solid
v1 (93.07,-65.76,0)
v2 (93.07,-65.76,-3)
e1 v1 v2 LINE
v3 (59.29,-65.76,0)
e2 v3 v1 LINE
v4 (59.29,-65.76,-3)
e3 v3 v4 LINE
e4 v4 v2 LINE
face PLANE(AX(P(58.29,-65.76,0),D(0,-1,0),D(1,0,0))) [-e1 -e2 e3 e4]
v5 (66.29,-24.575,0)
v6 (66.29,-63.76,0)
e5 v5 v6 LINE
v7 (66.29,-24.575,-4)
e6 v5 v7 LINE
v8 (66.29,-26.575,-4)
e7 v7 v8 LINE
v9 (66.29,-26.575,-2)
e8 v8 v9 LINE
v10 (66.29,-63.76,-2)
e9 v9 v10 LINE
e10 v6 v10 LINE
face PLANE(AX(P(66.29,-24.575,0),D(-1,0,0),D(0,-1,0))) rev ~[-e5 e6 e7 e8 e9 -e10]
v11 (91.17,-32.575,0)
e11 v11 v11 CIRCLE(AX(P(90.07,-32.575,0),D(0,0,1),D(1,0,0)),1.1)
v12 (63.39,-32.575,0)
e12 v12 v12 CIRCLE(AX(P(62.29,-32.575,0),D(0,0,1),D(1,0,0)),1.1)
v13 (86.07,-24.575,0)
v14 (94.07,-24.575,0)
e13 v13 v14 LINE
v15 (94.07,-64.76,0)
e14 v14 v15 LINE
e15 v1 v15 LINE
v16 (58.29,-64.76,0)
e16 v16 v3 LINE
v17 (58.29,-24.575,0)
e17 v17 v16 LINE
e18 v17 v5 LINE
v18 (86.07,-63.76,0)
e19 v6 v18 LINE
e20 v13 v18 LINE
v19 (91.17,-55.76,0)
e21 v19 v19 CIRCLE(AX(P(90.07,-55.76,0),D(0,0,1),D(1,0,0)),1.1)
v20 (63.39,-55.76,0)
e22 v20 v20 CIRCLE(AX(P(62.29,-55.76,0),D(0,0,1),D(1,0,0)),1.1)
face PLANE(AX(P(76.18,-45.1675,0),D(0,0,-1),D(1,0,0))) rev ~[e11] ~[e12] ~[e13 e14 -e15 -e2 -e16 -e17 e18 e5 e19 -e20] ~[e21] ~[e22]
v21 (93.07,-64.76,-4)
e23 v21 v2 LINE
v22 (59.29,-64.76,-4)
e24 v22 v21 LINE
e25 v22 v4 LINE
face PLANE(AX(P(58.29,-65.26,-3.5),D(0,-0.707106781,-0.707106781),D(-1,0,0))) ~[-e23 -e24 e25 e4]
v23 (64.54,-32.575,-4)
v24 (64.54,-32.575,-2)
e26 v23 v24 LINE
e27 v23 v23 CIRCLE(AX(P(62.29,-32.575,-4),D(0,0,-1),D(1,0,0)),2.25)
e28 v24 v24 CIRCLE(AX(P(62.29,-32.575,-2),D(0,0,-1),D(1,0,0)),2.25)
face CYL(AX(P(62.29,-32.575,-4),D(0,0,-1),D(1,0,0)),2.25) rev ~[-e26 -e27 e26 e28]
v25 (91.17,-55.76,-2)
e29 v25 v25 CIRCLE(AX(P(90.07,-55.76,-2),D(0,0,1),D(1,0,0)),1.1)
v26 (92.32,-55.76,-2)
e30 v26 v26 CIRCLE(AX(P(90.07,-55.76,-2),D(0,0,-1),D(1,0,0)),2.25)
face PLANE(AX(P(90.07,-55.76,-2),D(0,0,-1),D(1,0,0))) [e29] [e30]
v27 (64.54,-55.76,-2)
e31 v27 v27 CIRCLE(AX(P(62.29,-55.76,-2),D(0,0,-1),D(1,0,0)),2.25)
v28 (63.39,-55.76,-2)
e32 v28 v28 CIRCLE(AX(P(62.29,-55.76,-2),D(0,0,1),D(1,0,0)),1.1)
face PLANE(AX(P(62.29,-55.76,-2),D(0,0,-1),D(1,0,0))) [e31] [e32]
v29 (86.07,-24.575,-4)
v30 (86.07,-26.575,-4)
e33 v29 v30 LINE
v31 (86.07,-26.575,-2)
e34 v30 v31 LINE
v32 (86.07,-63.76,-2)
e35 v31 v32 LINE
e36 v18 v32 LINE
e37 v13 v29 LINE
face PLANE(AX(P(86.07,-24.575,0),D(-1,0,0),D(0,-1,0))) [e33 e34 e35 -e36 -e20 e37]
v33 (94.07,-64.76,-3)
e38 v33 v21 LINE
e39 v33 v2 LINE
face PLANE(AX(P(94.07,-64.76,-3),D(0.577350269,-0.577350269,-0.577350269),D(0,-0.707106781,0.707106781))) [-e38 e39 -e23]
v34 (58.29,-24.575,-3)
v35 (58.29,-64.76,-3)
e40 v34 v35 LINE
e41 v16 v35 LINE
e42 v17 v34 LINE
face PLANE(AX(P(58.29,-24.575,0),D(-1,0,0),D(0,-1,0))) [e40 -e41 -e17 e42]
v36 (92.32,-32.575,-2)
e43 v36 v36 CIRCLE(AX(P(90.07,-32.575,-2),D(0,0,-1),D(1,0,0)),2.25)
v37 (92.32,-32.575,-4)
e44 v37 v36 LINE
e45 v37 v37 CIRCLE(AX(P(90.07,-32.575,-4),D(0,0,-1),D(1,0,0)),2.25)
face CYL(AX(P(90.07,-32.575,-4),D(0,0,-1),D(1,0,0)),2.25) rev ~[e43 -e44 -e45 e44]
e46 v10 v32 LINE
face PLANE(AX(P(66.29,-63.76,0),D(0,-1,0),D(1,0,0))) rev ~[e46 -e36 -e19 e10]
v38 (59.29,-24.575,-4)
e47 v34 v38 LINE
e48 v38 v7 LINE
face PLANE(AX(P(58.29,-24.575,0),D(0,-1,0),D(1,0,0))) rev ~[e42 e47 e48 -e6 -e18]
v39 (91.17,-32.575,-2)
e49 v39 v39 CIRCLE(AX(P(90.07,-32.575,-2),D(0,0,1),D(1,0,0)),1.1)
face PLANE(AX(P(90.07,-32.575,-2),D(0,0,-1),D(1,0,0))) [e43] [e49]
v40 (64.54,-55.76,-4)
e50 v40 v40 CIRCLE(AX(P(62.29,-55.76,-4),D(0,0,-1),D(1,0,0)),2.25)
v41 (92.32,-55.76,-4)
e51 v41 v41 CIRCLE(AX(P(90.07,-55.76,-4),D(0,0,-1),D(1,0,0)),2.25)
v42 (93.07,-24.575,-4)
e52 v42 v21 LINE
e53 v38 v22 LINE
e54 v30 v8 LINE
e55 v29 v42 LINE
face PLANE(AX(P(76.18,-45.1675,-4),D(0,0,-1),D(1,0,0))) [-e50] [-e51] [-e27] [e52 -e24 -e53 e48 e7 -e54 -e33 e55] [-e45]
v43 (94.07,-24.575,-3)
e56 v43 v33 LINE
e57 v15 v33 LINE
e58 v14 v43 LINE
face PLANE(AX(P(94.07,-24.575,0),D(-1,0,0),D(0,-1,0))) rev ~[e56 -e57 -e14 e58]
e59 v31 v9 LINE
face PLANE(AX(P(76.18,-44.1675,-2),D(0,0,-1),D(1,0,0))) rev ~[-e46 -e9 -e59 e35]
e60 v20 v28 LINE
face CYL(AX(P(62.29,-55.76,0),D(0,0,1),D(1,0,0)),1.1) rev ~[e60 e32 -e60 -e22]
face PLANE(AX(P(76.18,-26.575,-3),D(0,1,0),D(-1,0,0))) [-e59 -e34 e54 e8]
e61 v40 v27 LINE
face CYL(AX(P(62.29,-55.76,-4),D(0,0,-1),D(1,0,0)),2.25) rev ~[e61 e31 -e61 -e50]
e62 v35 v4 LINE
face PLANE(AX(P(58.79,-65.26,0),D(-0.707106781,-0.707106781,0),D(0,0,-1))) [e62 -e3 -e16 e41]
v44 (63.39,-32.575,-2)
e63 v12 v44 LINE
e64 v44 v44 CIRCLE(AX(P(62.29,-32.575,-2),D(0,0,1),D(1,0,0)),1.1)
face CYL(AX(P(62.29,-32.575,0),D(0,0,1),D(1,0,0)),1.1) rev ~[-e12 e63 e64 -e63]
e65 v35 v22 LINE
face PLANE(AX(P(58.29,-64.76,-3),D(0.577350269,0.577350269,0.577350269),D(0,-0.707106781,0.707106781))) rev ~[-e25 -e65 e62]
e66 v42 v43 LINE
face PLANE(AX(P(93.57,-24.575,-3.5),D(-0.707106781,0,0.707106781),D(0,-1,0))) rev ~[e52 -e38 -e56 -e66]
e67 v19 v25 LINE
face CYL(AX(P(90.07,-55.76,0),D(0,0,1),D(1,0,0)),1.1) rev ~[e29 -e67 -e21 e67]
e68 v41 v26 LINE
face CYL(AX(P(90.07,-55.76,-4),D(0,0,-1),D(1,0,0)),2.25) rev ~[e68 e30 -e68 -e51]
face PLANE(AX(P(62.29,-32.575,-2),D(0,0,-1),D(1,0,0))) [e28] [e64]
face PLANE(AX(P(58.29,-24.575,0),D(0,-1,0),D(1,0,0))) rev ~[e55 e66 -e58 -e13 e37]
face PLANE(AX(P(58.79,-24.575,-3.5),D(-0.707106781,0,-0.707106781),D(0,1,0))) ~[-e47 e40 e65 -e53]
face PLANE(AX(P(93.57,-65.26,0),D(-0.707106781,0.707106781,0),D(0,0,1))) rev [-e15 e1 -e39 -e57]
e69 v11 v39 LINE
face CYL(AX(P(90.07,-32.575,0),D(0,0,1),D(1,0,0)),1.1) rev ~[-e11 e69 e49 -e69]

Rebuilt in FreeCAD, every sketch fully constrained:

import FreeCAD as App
import Part
import Sketcher

V = App.Vector


def edges_at(feature, points):
    """Names of the edges that pass closest to the given points."""
    edges = feature.Shape.Edges
    near = lambda p: min(range(len(edges)), key=lambda i: edges[i].distToShape(Part.Vertex(*p))[0])
    return sorted({f"Edge{near(p) + 1}" for p in points})


def add_polygon(sketch, points):
    """Adds a closed chain of lines whose ends are joined by coincident constraints."""
    first, n = sketch.GeometryCount, len(points)
    for a, b in zip(points, points[1:] + points[:1]):
        sketch.addGeometry(Part.LineSegment(App.Vector(*a, 0), App.Vector(*b, 0)), False)
    for i in range(n):
        sketch.addConstraint(Sketcher.Constraint("Coincident", first + i, 2, first + (i + 1) % n, 1))

doc = App.newDocument("Part")
params = doc.addObject("Spreadsheet::Sheet", "Params")
for row, (alias, value) in enumerate([
    ("sketch1_width", "35.78 mm"),
    ("pad1_length", "4 mm"),
    ("sketch2_width", "19.78 mm"),
    ("pocket1_length", "2 mm"),
    ("sketch3_diameter", "2.2 mm"),
    ("sketch4_diameter", "4.5 mm"),
    ("pocket3_length", "2 mm"),
    ("chamfer_size", "1 mm"),
    ("sketch5_height", "2 mm"),
    ("sketch5_width", "19.78 mm"),
    ("pocket4_length", "2 mm"),
], start=1):
    params.set(f"A{row}", alias)
    params.set(f"B{row}", "=" + value)
    params.setAlias(f"B{row}", alias)

body = doc.addObject("PartDesign::Body", "Body")

sketch1 = doc.addObject("Sketcher::SketchObject", "Sketch")
body.addObject(sketch1)
sketch1.AttachmentSupport = (doc.XY_Plane, [""])
sketch1.MapMode = "FlatFace"
add_polygon(sketch1, [(58, -66), (58, -25), (94, -25), (94, -66)])
sketch1.addConstraint([
    Sketcher.Constraint("Vertical", 0),
    Sketcher.Constraint("Horizontal", 1),
    Sketcher.Constraint("Vertical", 2),
    Sketcher.Constraint("Horizontal", 3),
    Sketcher.Constraint("DistanceX", 1, 1, 1, 2, 35.78),
    Sketcher.Constraint("DistanceY", 0, 1, 0, 2, 41.185),
    Sketcher.Constraint("DistanceX", -1, 1, 0, 2, 58.29),
    Sketcher.Constraint("DistanceY", 2, 2, -1, 1, 65.76),
])
sketch1.setExpression("Constraints[8]", "Params.sketch1_width")
pad1 = doc.addObject("PartDesign::Pad", "Pad")
body.addObject(pad1)
pad1.Profile = sketch1
pad1.setExpression("Length", "Params.pad1_length")
pad1.Reversed = True

sketch2 = doc.addObject("Sketcher::SketchObject", "Sketch001")
body.addObject(sketch2)
sketch2.AttachmentSupport = (doc.XY_Plane, [""])
sketch2.MapMode = "FlatFace"
add_polygon(sketch2, [(66, -64), (66, -25), (86, -25), (86, -64)])
sketch2.addConstraint([
    Sketcher.Constraint("Vertical", 0),
    Sketcher.Constraint("Horizontal", 1),
    Sketcher.Constraint("Vertical", 2),
    Sketcher.Constraint("Horizontal", 3),
    Sketcher.Constraint("DistanceX", 1, 1, 1, 2, 19.78),
    Sketcher.Constraint("DistanceY", 0, 1, 0, 2, 39.185),
    Sketcher.Constraint("DistanceX", -1, 1, 0, 2, 66.29),
    Sketcher.Constraint("DistanceY", 2, 2, -1, 1, 63.76),
])
sketch2.setExpression("Constraints[8]", "Params.sketch2_width")
pocket1 = doc.addObject("PartDesign::Pocket", "Pocket")
body.addObject(pocket1)
pocket1.Profile = sketch2
pocket1.setExpression("Length", "Params.pocket1_length")

sketch3 = doc.addObject("Sketcher::SketchObject", "Sketch002")
body.addObject(sketch3)
sketch3.AttachmentSupport = (doc.XY_Plane, [""])
sketch3.MapMode = "FlatFace"
sketch3.addGeometry([
    Part.Circle(V(62.3, -32.6, 0), V(0, 0, 1), 1.1),
    Part.Circle(V(90.1, -32.6, 0), V(0, 0, 1), 1.1),
    Part.Circle(V(90.1, -55.8, 0), V(0, 0, 1), 1.1),
    Part.Circle(V(62.3, -55.8, 0), V(0, 0, 1), 1.1),
], False)
sketch3.addConstraint([
    Sketcher.Constraint("Equal", 0, 1),
    Sketcher.Constraint("Equal", 1, 2),
    Sketcher.Constraint("Equal", 2, 3),
    Sketcher.Constraint("Horizontal", 0, 3, 1, 3),
    Sketcher.Constraint("Horizontal", 2, 3, 3, 3),
    Sketcher.Constraint("Vertical", 1, 3, 2, 3),
    Sketcher.Constraint("Vertical", 0, 3, 3, 3),
    Sketcher.Constraint("Diameter", 0, 2.2),
    Sketcher.Constraint("DistanceX", -1, 1, 0, 3, 62.29),
    Sketcher.Constraint("DistanceX", -1, 1, 1, 3, 90.07),
    Sketcher.Constraint("DistanceY", 2, 3, -1, 1, 55.76),
    Sketcher.Constraint("DistanceY", 0, 3, -1, 1, 32.575),
])
sketch3.setExpression("Constraints[7]", "Params.sketch3_diameter")
pocket2 = doc.addObject("PartDesign::Pocket", "Pocket001")
body.addObject(pocket2)
pocket2.Profile = sketch3
pocket2.Type = "ThroughAll"

sketch4 = doc.addObject("Sketcher::SketchObject", "Sketch003")
body.addObject(sketch4)
sketch4.AttachmentSupport = (doc.XY_Plane, [""])
sketch4.MapMode = "FlatFace"
sketch4.AttachmentOffset = App.Placement(V(0, 0, -4), App.Rotation())
sketch4.addGeometry([
    Part.Circle(V(62.3, -55.8, 0), V(0, 0, 1), 2.2),
    Part.Circle(V(90.1, -55.8, 0), V(0, 0, 1), 2.2),
    Part.Circle(V(90.1, -32.6, 0), V(0, 0, 1), 2.2),
    Part.Circle(V(62.3, -32.6, 0), V(0, 0, 1), 2.2),
], False)
sketch4.addConstraint([
    Sketcher.Constraint("Equal", 0, 1),
    Sketcher.Constraint("Equal", 1, 2),
    Sketcher.Constraint("Equal", 2, 3),
    Sketcher.Constraint("Horizontal", 0, 3, 1, 3),
    Sketcher.Constraint("Horizontal", 2, 3, 3, 3),
    Sketcher.Constraint("Vertical", 1, 3, 2, 3),
    Sketcher.Constraint("Vertical", 0, 3, 3, 3),
    Sketcher.Constraint("Diameter", 0, 4.5),
    Sketcher.Constraint("DistanceX", -1, 1, 0, 3, 62.29),
    Sketcher.Constraint("DistanceY", 0, 3, -1, 1, 55.76),
    Sketcher.Constraint("DistanceX", -1, 1, 1, 3, 90.07),
    Sketcher.Constraint("DistanceY", 2, 3, -1, 1, 32.575),
])
sketch4.setExpression("Constraints[7]", "Params.sketch4_diameter")
pocket3 = doc.addObject("PartDesign::Pocket", "Pocket002")
body.addObject(pocket3)
pocket3.Profile = sketch4
pocket3.setExpression("Length", "Params.pocket3_length")
pocket3.Reversed = True
doc.recompute()

chamfer = doc.addObject("PartDesign::Chamfer", "Chamfer")
body.addObject(chamfer)
chamfer.Base = (pocket3, edges_at(pocket3, [
    (76.18, -65.76, -4),
    (94.07, -45.167, -4),
    (58.29, -45.167, -4),
    (58.29, -65.76, -2),
    (94.07, -65.76, -2),
]))
chamfer.setExpression("Size", "Params.chamfer_size")

sketch5 = doc.addObject("Sketcher::SketchObject", "Sketch004")
body.addObject(sketch5)
sketch5.AttachmentSupport = (doc.XZ_Plane, [""])
sketch5.MapMode = "FlatFace"
sketch5.AttachmentOffset = App.Placement(V(0, 0, 24.575), App.Rotation())
add_polygon(sketch5, [(86.1, -2), (86.1, -4), (66.3, -4), (66.3, -2)])
sketch5.addConstraint([
    Sketcher.Constraint("Vertical", 0),
    Sketcher.Constraint("Horizontal", 1),
    Sketcher.Constraint("Vertical", 2),
    Sketcher.Constraint("Horizontal", 3),
    Sketcher.Constraint("DistanceY", 0, 2, 0, 1, 2.0),
    Sketcher.Constraint("DistanceY", 0, 2, -1, 1, 4.0),
    Sketcher.Constraint("DistanceX", 1, 2, 1, 1, 19.78),
    Sketcher.Constraint("DistanceX", -1, 1, 0, 2, 86.07),
])
sketch5.setExpression("Constraints[8]", "Params.sketch5_height")
sketch5.setExpression("Constraints[10]", "Params.sketch5_width")
pocket4 = doc.addObject("PartDesign::Pocket", "Pocket003")
body.addObject(pocket4)
pocket4.Profile = sketch5
pocket4.setExpression("Length", "Params.pocket4_length")
pocket4.Reversed = True

doc.recompute()
